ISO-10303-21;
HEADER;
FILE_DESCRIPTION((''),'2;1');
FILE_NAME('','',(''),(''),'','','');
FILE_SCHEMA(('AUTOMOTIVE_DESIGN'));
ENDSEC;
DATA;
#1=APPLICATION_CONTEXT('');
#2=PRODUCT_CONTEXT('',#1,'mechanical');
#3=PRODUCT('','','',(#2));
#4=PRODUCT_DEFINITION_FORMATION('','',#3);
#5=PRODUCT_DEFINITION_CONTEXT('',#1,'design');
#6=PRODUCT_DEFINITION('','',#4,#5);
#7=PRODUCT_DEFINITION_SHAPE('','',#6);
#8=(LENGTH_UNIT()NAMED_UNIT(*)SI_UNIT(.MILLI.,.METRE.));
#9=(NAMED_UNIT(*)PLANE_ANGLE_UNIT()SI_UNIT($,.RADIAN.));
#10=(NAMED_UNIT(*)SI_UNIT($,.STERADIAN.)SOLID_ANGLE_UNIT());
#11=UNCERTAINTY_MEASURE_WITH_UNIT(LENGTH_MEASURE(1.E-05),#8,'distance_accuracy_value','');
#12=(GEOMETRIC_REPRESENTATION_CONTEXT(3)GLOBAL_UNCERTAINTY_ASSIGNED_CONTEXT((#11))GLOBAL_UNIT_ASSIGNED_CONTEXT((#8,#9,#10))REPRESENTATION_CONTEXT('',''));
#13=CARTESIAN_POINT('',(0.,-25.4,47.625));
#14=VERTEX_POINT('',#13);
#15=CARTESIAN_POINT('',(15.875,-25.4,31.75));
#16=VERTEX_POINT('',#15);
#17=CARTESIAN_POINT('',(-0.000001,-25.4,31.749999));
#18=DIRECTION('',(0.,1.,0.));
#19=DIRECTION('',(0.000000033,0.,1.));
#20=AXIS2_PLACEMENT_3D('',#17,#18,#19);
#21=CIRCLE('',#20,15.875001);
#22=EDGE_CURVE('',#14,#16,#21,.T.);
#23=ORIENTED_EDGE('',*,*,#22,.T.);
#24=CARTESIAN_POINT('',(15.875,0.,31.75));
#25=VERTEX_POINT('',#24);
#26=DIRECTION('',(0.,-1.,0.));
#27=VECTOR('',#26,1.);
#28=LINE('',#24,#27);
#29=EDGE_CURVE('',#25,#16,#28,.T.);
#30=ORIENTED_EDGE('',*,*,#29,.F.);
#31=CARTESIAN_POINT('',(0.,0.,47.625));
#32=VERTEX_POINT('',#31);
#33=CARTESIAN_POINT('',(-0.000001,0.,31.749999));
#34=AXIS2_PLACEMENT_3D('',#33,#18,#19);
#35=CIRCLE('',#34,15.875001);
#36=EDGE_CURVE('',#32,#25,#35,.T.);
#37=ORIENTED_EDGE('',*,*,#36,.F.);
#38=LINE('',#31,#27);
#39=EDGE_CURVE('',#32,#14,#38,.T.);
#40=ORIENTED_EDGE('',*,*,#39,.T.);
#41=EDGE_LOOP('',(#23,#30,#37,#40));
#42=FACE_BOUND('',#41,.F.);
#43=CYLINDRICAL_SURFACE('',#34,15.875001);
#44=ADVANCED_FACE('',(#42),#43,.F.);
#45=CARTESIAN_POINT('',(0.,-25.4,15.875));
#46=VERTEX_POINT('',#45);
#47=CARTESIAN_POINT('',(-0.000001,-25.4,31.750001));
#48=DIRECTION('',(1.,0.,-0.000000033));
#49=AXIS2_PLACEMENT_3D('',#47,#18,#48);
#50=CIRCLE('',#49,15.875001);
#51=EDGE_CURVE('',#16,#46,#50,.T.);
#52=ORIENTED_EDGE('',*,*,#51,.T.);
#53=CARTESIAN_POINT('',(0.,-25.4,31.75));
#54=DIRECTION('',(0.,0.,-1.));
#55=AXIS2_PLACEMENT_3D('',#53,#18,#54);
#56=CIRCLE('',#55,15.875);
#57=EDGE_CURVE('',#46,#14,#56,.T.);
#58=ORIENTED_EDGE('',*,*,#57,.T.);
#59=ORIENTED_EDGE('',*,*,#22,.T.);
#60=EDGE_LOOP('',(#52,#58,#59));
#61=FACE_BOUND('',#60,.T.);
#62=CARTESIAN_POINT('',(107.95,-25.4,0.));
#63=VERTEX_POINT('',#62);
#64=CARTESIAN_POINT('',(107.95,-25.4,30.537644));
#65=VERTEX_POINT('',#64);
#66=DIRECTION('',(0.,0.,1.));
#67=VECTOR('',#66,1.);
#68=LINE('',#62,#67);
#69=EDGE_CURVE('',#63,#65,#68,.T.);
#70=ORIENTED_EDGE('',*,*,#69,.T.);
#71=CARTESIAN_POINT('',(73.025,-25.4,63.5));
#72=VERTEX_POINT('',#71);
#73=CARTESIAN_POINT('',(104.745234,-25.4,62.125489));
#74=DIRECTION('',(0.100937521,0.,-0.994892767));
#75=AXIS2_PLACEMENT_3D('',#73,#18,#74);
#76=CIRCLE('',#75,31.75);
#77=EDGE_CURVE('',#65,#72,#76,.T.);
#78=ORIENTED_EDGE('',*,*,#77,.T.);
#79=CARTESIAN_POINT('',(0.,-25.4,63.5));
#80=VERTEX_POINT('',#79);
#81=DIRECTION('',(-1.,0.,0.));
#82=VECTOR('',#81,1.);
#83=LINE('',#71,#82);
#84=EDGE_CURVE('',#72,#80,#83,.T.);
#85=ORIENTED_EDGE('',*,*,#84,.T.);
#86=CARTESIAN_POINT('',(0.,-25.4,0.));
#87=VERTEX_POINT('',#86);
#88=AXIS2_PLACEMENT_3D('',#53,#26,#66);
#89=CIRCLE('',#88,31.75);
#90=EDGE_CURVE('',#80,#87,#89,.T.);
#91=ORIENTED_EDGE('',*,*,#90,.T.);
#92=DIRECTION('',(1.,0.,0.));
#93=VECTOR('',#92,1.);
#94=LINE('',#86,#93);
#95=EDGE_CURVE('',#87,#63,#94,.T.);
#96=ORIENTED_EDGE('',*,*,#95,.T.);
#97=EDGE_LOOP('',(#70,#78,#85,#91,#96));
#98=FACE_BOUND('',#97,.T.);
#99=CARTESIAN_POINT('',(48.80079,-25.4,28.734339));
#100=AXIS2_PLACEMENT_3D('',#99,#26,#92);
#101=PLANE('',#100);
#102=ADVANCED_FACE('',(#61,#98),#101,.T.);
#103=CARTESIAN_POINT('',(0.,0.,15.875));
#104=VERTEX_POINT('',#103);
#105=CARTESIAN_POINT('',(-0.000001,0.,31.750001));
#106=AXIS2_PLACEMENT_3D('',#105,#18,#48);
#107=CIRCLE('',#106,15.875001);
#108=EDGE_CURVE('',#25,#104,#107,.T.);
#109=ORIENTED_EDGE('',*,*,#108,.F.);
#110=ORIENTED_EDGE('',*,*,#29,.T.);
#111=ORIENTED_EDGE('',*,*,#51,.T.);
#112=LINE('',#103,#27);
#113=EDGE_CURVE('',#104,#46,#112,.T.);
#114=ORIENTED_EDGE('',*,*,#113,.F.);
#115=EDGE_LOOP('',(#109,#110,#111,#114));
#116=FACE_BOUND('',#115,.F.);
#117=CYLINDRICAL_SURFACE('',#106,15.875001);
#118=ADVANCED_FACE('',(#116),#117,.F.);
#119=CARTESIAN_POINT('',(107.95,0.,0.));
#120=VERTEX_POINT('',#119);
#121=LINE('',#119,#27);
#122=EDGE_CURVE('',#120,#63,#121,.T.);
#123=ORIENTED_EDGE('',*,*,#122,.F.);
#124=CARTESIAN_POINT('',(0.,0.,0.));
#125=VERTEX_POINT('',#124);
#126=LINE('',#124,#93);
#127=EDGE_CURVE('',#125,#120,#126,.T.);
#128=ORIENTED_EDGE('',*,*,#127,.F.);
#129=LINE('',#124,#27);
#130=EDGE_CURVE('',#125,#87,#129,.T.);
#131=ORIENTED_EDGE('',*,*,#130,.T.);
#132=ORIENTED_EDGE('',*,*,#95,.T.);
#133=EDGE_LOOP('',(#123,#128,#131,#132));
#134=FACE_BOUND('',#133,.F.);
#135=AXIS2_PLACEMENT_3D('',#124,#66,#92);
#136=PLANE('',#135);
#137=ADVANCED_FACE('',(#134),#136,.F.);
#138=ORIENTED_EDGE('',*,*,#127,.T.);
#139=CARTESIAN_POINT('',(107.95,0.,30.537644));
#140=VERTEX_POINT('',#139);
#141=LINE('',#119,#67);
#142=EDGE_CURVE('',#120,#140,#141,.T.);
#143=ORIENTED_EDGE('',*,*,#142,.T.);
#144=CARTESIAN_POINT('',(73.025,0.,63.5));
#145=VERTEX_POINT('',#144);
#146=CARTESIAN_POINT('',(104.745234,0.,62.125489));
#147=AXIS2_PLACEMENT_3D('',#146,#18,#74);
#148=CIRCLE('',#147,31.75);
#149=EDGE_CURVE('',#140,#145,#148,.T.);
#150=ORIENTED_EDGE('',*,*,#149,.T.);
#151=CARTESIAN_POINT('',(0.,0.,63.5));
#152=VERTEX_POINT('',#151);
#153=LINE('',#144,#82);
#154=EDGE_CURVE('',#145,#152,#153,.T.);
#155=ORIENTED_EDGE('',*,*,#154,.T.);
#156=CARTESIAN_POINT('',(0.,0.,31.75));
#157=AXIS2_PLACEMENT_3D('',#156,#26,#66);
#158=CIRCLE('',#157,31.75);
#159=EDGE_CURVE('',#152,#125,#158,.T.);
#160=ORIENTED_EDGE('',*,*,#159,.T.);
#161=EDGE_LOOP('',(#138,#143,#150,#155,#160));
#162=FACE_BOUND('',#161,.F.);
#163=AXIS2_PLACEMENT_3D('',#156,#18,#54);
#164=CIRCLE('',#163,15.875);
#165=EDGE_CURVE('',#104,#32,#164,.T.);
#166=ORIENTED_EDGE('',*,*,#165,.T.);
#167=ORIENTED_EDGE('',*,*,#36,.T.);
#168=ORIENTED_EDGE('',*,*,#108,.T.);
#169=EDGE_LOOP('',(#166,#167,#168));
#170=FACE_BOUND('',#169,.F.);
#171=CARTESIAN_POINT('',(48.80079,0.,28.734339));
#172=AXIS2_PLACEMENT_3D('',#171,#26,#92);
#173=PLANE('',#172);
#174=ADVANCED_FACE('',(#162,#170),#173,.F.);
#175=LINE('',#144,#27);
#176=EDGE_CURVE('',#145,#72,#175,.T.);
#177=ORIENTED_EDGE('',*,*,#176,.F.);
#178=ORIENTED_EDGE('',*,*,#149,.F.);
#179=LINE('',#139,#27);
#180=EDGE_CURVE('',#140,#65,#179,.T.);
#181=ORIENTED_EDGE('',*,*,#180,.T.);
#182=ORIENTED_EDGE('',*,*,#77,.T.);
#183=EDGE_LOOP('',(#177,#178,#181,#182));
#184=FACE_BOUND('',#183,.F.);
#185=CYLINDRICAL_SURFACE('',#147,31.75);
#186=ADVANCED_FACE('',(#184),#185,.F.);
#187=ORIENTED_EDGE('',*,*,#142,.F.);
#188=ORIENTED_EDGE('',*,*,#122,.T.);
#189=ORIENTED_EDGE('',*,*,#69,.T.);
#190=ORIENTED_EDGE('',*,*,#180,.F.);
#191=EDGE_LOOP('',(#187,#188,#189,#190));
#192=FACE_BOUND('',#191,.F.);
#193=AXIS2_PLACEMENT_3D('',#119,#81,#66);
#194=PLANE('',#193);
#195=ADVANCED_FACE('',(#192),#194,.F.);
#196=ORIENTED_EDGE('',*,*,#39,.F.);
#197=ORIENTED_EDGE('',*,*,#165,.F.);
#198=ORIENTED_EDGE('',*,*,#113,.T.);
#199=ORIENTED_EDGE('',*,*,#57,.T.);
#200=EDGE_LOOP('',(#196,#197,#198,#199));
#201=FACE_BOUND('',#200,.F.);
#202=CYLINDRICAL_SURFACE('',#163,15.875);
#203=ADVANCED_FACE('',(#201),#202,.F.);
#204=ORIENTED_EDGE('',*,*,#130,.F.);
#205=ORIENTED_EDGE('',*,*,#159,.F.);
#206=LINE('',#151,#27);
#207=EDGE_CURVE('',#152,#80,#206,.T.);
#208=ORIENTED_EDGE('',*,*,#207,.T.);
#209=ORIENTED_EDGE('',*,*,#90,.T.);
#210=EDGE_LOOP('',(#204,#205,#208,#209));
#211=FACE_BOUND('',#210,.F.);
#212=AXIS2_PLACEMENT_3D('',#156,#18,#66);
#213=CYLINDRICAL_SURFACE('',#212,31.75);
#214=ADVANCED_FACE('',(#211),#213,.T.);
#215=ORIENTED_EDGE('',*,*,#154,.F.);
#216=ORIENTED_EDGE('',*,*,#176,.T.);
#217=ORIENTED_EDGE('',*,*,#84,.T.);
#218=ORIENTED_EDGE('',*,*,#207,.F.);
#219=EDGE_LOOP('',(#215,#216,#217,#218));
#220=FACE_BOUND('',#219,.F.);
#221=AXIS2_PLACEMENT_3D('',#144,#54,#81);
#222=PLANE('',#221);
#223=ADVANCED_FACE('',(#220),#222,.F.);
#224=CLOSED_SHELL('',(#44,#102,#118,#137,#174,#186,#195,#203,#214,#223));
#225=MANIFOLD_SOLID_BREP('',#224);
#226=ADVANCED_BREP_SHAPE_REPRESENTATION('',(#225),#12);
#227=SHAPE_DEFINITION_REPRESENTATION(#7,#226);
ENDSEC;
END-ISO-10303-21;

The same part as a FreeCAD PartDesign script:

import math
import FreeCAD as App
import Part
import Sketcher
Q = App.Units.Quantity

doc = App.newDocument("Part")
params = doc.addObject("Spreadsheet::Sheet", "Params")
for row, (alias, value) in enumerate([
    ("sketch1_radius", "1.25 in"),
    ("sketch1_radius2", "0.625 in"),
    ("sketch1_width", "4.25 in"),
    ("sketch1_width2", "2.875 in"),
    ("pad1_length", "1 in"),
], start=1):
    params.set(f"A{row}", alias)
    params.set(f"B{row}", "=" + value)
    params.setAlias(f"B{row}", alias)

body = doc.addObject("PartDesign::Body", "Body")

# Sketch on XZ plane
sketch1 = body.newObject("Sketcher::SketchObject", "Sketch")
sketch1.AttachmentSupport = (doc.getObject("XZ_Plane"), [""])
sketch1.MapMode = "FlatFace"
sketch1.addGeometry(Part.LineSegment(App.Vector(0, 0, 0), App.Vector(108, 0, 0)), False)
sketch1.addGeometry(Part.LineSegment(App.Vector(108, 0, 0), App.Vector(108, 31, 0)), False)
sketch1.addGeometry(Part.ArcOfCircle(Part.Circle(App.Vector(105, 62, 0), App.Vector(0, 0, 1), 32), math.radians(178), math.radians(276)), False)
sketch1.addGeometry(Part.LineSegment(App.Vector(73, 64, 0), App.Vector(0, 64, 0)), False)
sketch1.addGeometry(Part.ArcOfCircle(Part.Circle(App.Vector(0, 32, 0), App.Vector(0, 0, 1), 32), math.radians(90), math.radians(270)), False)
sketch1.addGeometry(Part.ArcOfCircle(Part.Circle(App.Vector(0, 32, 0), App.Vector(0, 0, 1), 16), math.radians(0), math.radians(90)), False)
sketch1.addGeometry(Part.ArcOfCircle(Part.Circle(App.Vector(0, 32, 0), App.Vector(0, 0, 1), 16), math.radians(-90), math.radians(0)), False)
sketch1.addGeometry(Part.ArcOfCircle(Part.Circle(App.Vector(0, 32, 0), App.Vector(0, 0, 1), 16), math.radians(90), math.radians(270)), False)
sketch1.addConstraint(Sketcher.Constraint("Coincident", 0, 2, 1, 1))
sketch1.addConstraint(Sketcher.Constraint("Coincident", 1, 2, 2, 2))
sketch1.addConstraint(Sketcher.Constraint("Coincident", 2, 1, 3, 1))
sketch1.addConstraint(Sketcher.Constraint("Tangent", 3, 2, 4, 1))
sketch1.addConstraint(Sketcher.Constraint("Tangent", 4, 2, 0, 1))
sketch1.addConstraint(Sketcher.Constraint("Tangent", 5, 1, 6, 2))
sketch1.addConstraint(Sketcher.Constraint("Tangent", 6, 1, 7, 2))
sketch1.addConstraint(Sketcher.Constraint("Tangent", 7, 1, 5, 2))
sketch1.addConstraint(Sketcher.Constraint("Horizontal", 0))
sketch1.addConstraint(Sketcher.Constraint("Vertical", 1))
sketch1.addConstraint(Sketcher.Constraint("Horizontal", 3))
sketch1.addConstraint(Sketcher.Constraint("Coincident", 4, 2, -1, 1))
sketch1.addConstraint(Sketcher.Constraint("Coincident", 5, 3, 4, 3))
sketch1.addConstraint(Sketcher.Constraint("Equal", 2, 4))
sketch1.addConstraint(Sketcher.Constraint("PointOnObject", 6, 1, -2))
sketch1.addConstraint(Sketcher.Constraint("PointOnObject", 7, 1, -2))
sketch1.addConstraint(Sketcher.Constraint("Horizontal", 7, 3, 5, 1))
sketch1.addConstraint(Sketcher.Constraint("Radius", 2, Q("1.25 in")))
sketch1.addConstraint(Sketcher.Constraint("Radius", 5, Q("0.625 in")))
sketch1.addConstraint(Sketcher.Constraint("DistanceX", 0, 1, 0, 2, Q("4.25 in")))
sketch1.addConstraint(Sketcher.Constraint("DistanceX", 3, 2, 3, 1, Q("2.875 in")))
sketch1.addConstraint(Sketcher.Constraint("DistanceY", 1, 1, 1, 2, Q("30.537644 mm")))
sketch1.setExpression("Constraints[17]", "Params.sketch1_radius")
sketch1.setExpression("Constraints[18]", "Params.sketch1_radius2")
sketch1.setExpression("Constraints[19]", "Params.sketch1_width")
sketch1.setExpression("Constraints[20]", "Params.sketch1_width2")
pad1 = body.newObject("PartDesign::Pad", "Pad")
pad1.Profile = sketch1
pad1.setExpression("Length", "Params.pad1_length")

doc.recompute()
